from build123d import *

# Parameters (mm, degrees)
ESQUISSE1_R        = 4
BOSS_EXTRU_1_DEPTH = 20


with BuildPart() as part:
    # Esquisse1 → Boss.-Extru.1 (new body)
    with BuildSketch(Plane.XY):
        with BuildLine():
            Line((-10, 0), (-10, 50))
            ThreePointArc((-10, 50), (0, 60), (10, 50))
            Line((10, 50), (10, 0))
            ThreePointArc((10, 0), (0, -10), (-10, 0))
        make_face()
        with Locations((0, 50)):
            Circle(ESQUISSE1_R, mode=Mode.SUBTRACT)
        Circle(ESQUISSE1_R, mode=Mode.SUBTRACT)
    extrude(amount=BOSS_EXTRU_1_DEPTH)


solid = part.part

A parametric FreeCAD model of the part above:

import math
import FreeCAD as App
import Part
import Sketcher
Q = App.Units.Quantity

doc = App.newDocument("Part")
body = doc.addObject("PartDesign::Body", "Body")

# Sketch on XY plane
sketch1 = body.newObject("Sketcher::SketchObject", "Sketch")
sketch1.AttachmentSupport = (doc.getObject("XY_Plane"), [""])
sketch1.MapMode = "FlatFace"
sketch1.addGeometry(Part.LineSegment(App.Vector(-10, 50, 0), App.Vector(-10, 0, 0)), False)
sketch1.addGeometry(Part.ArcOfCircle(Part.Circle(App.Vector(0, 0, 0), App.Vector(0, 0, 1), 10), math.radians(180), math.radians(360)), False)
sketch1.addGeometry(Part.LineSegment(App.Vector(10, 0, 0), App.Vector(10, 50, 0)), False)
sketch1.addGeometry(Part.ArcOfCircle(Part.Circle(App.Vector(0, 50, 0), App.Vector(0, 0, 1), 10), math.radians(0), math.radians(180)), False)
sketch1.addGeometry(Part.Circle(App.Vector(0, 0, 0), App.Vector(0, 0, 1), 4), False)
sketch1.addGeometry(Part.Circle(App.Vector(0, 50, 0), App.Vector(0, 0, 1), 4), False)
sketch1.addConstraint(Sketcher.Constraint("Tangent", 0, 2, 1, 1))
sketch1.addConstraint(Sketcher.Constraint("Tangent", 1, 2, 2, 1))
sketch1.addConstraint(Sketcher.Constraint("Tangent", 2, 2, 3, 1))
sketch1.addConstraint(Sketcher.Constraint("Tangent", 3, 2, 0, 1))
sketch1.addConstraint(Sketcher.Constraint("Vertical", 0))
sketch1.addConstraint(Sketcher.Constraint("Vertical", 2))
sketch1.addConstraint(Sketcher.Constraint("Coincident", 1, 3, -1, 1))
sketch1.addConstraint(Sketcher.Constraint("Coincident", 4, 3, -1, 1))
sketch1.addConstraint(Sketcher.Constraint("Coincident", 5, 3, 3, 3))
sketch1.addConstraint(Sketcher.Constraint("Equal", 4, 5))
sketch1.addConstraint(Sketcher.Constraint("Diameter", 4, Q("8 mm")))
sketch1.addConstraint(Sketcher.Constraint("Radius", 1, Q("10 mm")))
sketch1.addConstraint(Sketcher.Constraint("DistanceY", 0, 2, 0, 1, Q("50 mm")))
pad1 = body.newObject("PartDesign::Pad", "Pad")
pad1.Profile = sketch1
pad1.Length = 20

doc.recompute()
